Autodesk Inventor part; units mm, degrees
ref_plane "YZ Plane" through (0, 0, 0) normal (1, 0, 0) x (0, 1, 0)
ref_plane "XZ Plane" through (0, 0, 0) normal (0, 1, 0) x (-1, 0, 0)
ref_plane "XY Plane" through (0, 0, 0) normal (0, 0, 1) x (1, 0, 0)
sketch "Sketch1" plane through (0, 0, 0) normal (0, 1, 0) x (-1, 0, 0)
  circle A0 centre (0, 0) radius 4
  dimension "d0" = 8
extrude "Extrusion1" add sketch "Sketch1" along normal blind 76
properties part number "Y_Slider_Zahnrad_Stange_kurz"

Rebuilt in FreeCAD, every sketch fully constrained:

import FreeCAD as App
import Part
import Sketcher
from FreeCAD import Vector
Q = App.Units.Quantity

doc = App.newDocument("Part")
body = doc.addObject("PartDesign::Body", "Body")

# Sketch on XZ plane
sketch1 = body.newObject("Sketcher::SketchObject", "Sketch")
sketch1.AttachmentSupport = (doc.getObject("XZ_Plane"), [""])
sketch1.MapMode = "FlatFace"
sketch1.addGeometry(Part.Circle(Vector(0, 0, 0), Vector(0, 0, 1), 4), False)
sketch1.addConstraint(Sketcher.Constraint("Coincident", 0, 3, -1, 1))
sketch1.addConstraint(Sketcher.Constraint("Diameter", 0, Q("8 mm")))
pad1 = body.newObject("PartDesign::Pad", "Pad")
pad1.Profile = sketch1
pad1.Length = 76
pad1.Reversed = True

doc.recompute()
